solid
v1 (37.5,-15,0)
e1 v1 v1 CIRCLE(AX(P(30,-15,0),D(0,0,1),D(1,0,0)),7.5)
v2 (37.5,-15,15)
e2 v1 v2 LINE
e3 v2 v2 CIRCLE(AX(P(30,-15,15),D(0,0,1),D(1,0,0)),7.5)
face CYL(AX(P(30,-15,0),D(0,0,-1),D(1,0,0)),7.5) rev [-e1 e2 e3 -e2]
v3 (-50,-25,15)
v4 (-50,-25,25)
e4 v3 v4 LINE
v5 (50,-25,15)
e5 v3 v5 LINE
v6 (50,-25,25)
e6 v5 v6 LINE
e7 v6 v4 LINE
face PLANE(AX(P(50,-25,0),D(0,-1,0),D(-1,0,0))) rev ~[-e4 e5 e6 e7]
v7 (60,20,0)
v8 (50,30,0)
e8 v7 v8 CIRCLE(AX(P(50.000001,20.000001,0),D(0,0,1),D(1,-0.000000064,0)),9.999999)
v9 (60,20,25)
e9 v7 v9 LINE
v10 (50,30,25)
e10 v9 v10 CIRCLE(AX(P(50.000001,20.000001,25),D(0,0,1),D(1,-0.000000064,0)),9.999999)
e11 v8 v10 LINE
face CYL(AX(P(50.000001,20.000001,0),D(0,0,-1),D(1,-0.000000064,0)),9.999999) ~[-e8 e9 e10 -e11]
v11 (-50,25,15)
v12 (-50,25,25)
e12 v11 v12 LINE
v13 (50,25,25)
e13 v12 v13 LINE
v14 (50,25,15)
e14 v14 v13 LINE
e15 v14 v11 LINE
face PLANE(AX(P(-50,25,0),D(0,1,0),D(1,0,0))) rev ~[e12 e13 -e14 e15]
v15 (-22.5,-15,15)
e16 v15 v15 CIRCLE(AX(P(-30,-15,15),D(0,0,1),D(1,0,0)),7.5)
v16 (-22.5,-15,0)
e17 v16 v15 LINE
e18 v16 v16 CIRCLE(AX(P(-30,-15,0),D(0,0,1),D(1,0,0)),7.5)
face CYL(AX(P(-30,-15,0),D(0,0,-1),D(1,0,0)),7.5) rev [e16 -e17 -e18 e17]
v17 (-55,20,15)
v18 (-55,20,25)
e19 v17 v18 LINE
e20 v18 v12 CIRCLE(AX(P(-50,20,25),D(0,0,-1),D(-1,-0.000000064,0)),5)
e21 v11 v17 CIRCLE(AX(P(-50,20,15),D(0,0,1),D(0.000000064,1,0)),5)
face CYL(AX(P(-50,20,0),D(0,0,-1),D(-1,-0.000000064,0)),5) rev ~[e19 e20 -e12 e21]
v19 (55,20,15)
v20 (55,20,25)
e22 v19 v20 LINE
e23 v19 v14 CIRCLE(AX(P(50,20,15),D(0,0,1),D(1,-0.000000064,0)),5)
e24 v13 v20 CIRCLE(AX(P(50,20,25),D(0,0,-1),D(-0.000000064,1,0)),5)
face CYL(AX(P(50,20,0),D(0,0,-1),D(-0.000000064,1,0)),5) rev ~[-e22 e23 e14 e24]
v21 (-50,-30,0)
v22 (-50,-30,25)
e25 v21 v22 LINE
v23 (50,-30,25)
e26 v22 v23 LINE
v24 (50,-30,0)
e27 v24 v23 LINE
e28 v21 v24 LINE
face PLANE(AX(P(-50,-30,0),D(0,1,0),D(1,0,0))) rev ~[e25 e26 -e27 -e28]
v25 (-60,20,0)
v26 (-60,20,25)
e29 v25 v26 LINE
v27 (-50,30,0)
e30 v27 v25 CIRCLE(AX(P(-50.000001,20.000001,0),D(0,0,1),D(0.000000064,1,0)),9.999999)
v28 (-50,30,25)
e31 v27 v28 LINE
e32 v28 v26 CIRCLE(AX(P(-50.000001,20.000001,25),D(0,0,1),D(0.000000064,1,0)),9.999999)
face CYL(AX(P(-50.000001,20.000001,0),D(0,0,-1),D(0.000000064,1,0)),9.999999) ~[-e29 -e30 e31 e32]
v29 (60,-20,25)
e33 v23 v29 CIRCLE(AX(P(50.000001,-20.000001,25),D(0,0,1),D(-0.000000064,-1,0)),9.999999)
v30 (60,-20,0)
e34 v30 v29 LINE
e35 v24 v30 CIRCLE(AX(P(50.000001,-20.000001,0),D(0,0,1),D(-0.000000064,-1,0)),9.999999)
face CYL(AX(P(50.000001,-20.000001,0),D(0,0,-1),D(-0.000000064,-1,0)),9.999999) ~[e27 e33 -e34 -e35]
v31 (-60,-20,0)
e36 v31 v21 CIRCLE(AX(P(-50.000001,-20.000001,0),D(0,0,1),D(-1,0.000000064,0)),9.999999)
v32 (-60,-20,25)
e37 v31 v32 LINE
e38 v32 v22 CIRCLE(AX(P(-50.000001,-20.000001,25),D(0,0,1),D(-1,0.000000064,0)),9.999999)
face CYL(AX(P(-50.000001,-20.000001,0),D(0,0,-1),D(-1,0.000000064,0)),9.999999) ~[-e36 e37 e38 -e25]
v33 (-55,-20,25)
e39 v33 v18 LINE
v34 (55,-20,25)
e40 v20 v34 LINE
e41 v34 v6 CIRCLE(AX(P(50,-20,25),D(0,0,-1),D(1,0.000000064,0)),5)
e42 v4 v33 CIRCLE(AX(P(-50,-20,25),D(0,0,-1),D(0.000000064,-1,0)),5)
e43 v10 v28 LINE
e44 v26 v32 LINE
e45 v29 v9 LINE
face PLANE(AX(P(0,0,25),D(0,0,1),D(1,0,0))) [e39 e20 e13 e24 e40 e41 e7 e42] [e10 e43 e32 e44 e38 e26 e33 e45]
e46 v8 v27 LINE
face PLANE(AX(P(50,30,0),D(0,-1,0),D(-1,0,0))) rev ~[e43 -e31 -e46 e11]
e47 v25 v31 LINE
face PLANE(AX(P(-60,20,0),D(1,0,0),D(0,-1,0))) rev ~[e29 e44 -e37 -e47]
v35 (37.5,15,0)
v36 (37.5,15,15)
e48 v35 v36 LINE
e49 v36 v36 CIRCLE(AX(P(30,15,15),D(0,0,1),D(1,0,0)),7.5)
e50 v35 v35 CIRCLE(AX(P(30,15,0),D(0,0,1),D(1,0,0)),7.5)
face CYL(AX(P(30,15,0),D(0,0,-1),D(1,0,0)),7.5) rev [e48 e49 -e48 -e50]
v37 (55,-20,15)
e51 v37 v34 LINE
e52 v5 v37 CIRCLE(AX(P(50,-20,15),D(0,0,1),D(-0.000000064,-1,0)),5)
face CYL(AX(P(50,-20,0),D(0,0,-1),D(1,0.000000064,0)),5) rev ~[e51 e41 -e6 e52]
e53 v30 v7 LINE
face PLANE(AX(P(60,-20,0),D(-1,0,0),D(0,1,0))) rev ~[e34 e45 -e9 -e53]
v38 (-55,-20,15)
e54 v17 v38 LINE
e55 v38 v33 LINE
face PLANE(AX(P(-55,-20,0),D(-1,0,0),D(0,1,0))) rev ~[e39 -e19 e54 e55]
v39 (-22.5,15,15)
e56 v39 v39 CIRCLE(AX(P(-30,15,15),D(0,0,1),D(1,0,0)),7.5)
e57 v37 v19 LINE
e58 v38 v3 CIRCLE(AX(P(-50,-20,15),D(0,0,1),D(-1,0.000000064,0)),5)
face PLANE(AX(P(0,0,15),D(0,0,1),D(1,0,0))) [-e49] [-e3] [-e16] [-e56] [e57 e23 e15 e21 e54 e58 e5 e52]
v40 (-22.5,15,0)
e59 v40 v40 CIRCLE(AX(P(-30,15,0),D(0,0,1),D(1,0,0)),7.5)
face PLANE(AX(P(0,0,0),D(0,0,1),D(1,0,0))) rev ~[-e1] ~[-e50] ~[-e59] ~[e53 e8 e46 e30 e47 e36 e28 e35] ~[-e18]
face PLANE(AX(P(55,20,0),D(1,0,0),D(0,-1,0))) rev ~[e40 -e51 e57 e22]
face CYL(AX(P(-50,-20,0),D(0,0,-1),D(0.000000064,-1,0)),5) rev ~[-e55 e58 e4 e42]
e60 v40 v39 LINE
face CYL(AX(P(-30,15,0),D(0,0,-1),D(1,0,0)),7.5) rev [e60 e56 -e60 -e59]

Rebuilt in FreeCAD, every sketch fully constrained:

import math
import FreeCAD as App
import Part
import Sketcher
from FreeCAD import Vector
Q = App.Units.Quantity

doc = App.newDocument("Part")
body = doc.addObject("PartDesign::Body", "Body")

sketch1 = body.newObject("Sketcher::SketchObject", "Sketch")
sketch1.AttachmentSupport = (doc.getObject("XY_Plane"), [""])
sketch1.MapMode = "FlatFace"
sketch1.addGeometry([
    Part.ArcOfCircle(Part.Circle(Vector(-50, -20, 0), Vector(0, 0, 1), 10), math.radians(180), math.radians(270)),
    Part.LineSegment(Vector(-50, -30, 0), Vector(50, -30, 0)),
    Part.ArcOfCircle(Part.Circle(Vector(50, -20, 0), Vector(0, 0, 1), 10), math.radians(-90), math.radians(0)),
    Part.LineSegment(Vector(60, -20, 0), Vector(60, 20, 0)),
    Part.ArcOfCircle(Part.Circle(Vector(50, 20, 0), Vector(0, 0, 1), 10), math.radians(0), math.radians(90)),
    Part.LineSegment(Vector(50, 30, 0), Vector(-50, 30, 0)),
    Part.ArcOfCircle(Part.Circle(Vector(-50, 20, 0), Vector(0, 0, 1), 10), math.radians(90), math.radians(180)),
    Part.LineSegment(Vector(-60, 20, 0), Vector(-60, -20, 0)),
    Part.LineSegment(Vector(-55, -20, 0), Vector(-55, 20, 0)),
    Part.ArcOfCircle(Part.Circle(Vector(-50, 20, 0), Vector(0, 0, 1), 5), math.radians(90), math.radians(180)),
    Part.LineSegment(Vector(-50, 25, 0), Vector(50, 25, 0)),
    Part.ArcOfCircle(Part.Circle(Vector(50, 20, 0), Vector(0, 0, 1), 5), math.radians(0), math.radians(90)),
    Part.LineSegment(Vector(55, 20, 0), Vector(55, -20, 0)),
    Part.ArcOfCircle(Part.Circle(Vector(50, -20, 0), Vector(0, 0, 1), 5), math.radians(-90), math.radians(0)),
    Part.LineSegment(Vector(50, -25, 0), Vector(-50, -25, 0)),
    Part.ArcOfCircle(Part.Circle(Vector(-50, -20, 0), Vector(0, 0, 1), 5), math.radians(180), math.radians(270)),
], False)
sketch1.addConstraint([
    Sketcher.Constraint("Tangent", 0, 2, 1, 1),
    Sketcher.Constraint("Tangent", 1, 2, 2, 1),
    Sketcher.Constraint("Tangent", 2, 2, 3, 1),
    Sketcher.Constraint("Tangent", 3, 2, 4, 1),
    Sketcher.Constraint("Tangent", 4, 2, 5, 1),
    Sketcher.Constraint("Tangent", 5, 2, 6, 1),
    Sketcher.Constraint("Tangent", 6, 2, 7, 1),
    Sketcher.Constraint("Tangent", 7, 2, 0, 1),
    Sketcher.Constraint("Tangent", 8, 2, 9, 2),
    Sketcher.Constraint("Tangent", 9, 1, 10, 1),
    Sketcher.Constraint("Tangent", 10, 2, 11, 2),
    Sketcher.Constraint("Tangent", 11, 1, 12, 1),
    Sketcher.Constraint("Tangent", 12, 2, 13, 2),
    Sketcher.Constraint("Tangent", 13, 1, 14, 1),
    Sketcher.Constraint("Tangent", 14, 2, 15, 2),
    Sketcher.Constraint("Tangent", 15, 1, 8, 1),
    Sketcher.Constraint("Horizontal", 1),
    Sketcher.Constraint("Vertical", 3),
    Sketcher.Constraint("Horizontal", 5),
    Sketcher.Constraint("Vertical", 7),
    Sketcher.Constraint("Vertical", 8),
    Sketcher.Constraint("Horizontal", 10),
    Sketcher.Constraint("Vertical", 12),
    Sketcher.Constraint("Horizontal", 14),
    Sketcher.Constraint("Coincident", 9, 3, 6, 3),
    Sketcher.Constraint("Coincident", 11, 3, 4, 3),
    Sketcher.Constraint("Coincident", 13, 3, 2, 3),
    Sketcher.Constraint("Equal", 0, 2),
    Sketcher.Constraint("Equal", 2, 4),
    Sketcher.Constraint("Equal", 4, 6),
    Sketcher.Constraint("Equal", 13, 15),
    Sketcher.Constraint("Symmetric", 0, 3, 4, 3, -1, 1),
    Sketcher.Constraint("Radius", 0, Q("9.999999 mm")),
    Sketcher.Constraint("Radius", 9, Q("5 mm")),
    Sketcher.Constraint("DistanceX", 1, 1, 1, 2, Q("100 mm")),
    Sketcher.Constraint("DistanceY", 3, 1, 3, 2, Q("40 mm")),
])
pad1 = body.newObject("PartDesign::Pad", "Pad")
pad1.Profile = sketch1
pad1.Length = 25

sketch2 = body.newObject("Sketcher::SketchObject", "Sketch001")
sketch2.AttachmentSupport = (doc.getObject("XY_Plane"), [""])
sketch2.MapMode = "FlatFace"
sketch2.addGeometry([
    Part.LineSegment(Vector(50, 25, 0), Vector(-50, 25, 0)),
    Part.ArcOfCircle(Part.Circle(Vector(-50, 20, 0), Vector(0, 0, 1), 5), math.radians(90), math.radians(180)),
    Part.LineSegment(Vector(-55, 20, 0), Vector(-55, -20, 0)),
    Part.ArcOfCircle(Part.Circle(Vector(-50, -20, 0), Vector(0, 0, 1), 5), math.radians(180), math.radians(270)),
    Part.LineSegment(Vector(-50, -25, 0), Vector(50, -25, 0)),
    Part.ArcOfCircle(Part.Circle(Vector(50, -20, 0), Vector(0, 0, 1), 5), math.radians(-90), math.radians(0)),
    Part.LineSegment(Vector(55, -20, 0), Vector(55, 20, 0)),
    Part.ArcOfCircle(Part.Circle(Vector(50, 20, 0), Vector(0, 0, 1), 5), math.radians(0), math.radians(90)),
    Part.Circle(Vector(-30, -15, 0), Vector(0, 0, 1), 7.5),
    Part.Circle(Vector(30, -15, 0), Vector(0, 0, 1), 7.5),
    Part.Circle(Vector(-30, 15, 0), Vector(0, 0, 1), 7.5),
    Part.Circle(Vector(30, 15, 0), Vector(0, 0, 1), 7.5),
], False)
sketch2.addConstraint([
    Sketcher.Constraint("Tangent", 0, 2, 1, 1),
    Sketcher.Constraint("Tangent", 1, 2, 2, 1),
    Sketcher.Constraint("Tangent", 2, 2, 3, 1),
    Sketcher.Constraint("Tangent", 3, 2, 4, 1),
    Sketcher.Constraint("Tangent", 4, 2, 5, 1),
    Sketcher.Constraint("Tangent", 5, 2, 6, 1),
    Sketcher.Constraint("Tangent", 6, 2, 7, 1),
    Sketcher.Constraint("Tangent", 7, 2, 0, 1),
    Sketcher.Constraint("Horizontal", 0),
    Sketcher.Constraint("Vertical", 2),
    Sketcher.Constraint("Horizontal", 4),
    Sketcher.Constraint("Vertical", 6),
    Sketcher.Constraint("Equal", 1, 3),
    Sketcher.Constraint("Equal", 3, 5),
    Sketcher.Constraint("Equal", 5, 7),
    Sketcher.Constraint("Equal", 8, 9),
    Sketcher.Constraint("Equal", 9, 10),
    Sketcher.Constraint("Equal", 10, 11),
    Sketcher.Constraint("Symmetric", 1, 3, 5, 3, -1, 1),
    Sketcher.Constraint("Symmetric", 9, 3, 10, 3, -1, 1),
    Sketcher.Constraint("Symmetric", 8, 3, 11, 3, -1, 1),
    Sketcher.Constraint("Symmetric", 8, 3, 9, 3, -2),
    Sketcher.Constraint("Diameter", 8, Q("15 mm")),
    Sketcher.Constraint("Radius", 1, Q("5 mm")),
    Sketcher.Constraint("DistanceX", 0, 2, 0, 1, Q("100 mm")),
    Sketcher.Constraint("DistanceY", 2, 2, 2, 1, Q("40 mm")),
    Sketcher.Constraint("DistanceX", 8, 3, -1, 1, Q("30 mm")),
    Sketcher.Constraint("DistanceY", 8, 3, -1, 1, Q("15 mm")),
])
pad2 = body.newObject("PartDesign::Pad", "Pad001")
pad2.Profile = sketch2
pad2.Length = 15

doc.recompute()
